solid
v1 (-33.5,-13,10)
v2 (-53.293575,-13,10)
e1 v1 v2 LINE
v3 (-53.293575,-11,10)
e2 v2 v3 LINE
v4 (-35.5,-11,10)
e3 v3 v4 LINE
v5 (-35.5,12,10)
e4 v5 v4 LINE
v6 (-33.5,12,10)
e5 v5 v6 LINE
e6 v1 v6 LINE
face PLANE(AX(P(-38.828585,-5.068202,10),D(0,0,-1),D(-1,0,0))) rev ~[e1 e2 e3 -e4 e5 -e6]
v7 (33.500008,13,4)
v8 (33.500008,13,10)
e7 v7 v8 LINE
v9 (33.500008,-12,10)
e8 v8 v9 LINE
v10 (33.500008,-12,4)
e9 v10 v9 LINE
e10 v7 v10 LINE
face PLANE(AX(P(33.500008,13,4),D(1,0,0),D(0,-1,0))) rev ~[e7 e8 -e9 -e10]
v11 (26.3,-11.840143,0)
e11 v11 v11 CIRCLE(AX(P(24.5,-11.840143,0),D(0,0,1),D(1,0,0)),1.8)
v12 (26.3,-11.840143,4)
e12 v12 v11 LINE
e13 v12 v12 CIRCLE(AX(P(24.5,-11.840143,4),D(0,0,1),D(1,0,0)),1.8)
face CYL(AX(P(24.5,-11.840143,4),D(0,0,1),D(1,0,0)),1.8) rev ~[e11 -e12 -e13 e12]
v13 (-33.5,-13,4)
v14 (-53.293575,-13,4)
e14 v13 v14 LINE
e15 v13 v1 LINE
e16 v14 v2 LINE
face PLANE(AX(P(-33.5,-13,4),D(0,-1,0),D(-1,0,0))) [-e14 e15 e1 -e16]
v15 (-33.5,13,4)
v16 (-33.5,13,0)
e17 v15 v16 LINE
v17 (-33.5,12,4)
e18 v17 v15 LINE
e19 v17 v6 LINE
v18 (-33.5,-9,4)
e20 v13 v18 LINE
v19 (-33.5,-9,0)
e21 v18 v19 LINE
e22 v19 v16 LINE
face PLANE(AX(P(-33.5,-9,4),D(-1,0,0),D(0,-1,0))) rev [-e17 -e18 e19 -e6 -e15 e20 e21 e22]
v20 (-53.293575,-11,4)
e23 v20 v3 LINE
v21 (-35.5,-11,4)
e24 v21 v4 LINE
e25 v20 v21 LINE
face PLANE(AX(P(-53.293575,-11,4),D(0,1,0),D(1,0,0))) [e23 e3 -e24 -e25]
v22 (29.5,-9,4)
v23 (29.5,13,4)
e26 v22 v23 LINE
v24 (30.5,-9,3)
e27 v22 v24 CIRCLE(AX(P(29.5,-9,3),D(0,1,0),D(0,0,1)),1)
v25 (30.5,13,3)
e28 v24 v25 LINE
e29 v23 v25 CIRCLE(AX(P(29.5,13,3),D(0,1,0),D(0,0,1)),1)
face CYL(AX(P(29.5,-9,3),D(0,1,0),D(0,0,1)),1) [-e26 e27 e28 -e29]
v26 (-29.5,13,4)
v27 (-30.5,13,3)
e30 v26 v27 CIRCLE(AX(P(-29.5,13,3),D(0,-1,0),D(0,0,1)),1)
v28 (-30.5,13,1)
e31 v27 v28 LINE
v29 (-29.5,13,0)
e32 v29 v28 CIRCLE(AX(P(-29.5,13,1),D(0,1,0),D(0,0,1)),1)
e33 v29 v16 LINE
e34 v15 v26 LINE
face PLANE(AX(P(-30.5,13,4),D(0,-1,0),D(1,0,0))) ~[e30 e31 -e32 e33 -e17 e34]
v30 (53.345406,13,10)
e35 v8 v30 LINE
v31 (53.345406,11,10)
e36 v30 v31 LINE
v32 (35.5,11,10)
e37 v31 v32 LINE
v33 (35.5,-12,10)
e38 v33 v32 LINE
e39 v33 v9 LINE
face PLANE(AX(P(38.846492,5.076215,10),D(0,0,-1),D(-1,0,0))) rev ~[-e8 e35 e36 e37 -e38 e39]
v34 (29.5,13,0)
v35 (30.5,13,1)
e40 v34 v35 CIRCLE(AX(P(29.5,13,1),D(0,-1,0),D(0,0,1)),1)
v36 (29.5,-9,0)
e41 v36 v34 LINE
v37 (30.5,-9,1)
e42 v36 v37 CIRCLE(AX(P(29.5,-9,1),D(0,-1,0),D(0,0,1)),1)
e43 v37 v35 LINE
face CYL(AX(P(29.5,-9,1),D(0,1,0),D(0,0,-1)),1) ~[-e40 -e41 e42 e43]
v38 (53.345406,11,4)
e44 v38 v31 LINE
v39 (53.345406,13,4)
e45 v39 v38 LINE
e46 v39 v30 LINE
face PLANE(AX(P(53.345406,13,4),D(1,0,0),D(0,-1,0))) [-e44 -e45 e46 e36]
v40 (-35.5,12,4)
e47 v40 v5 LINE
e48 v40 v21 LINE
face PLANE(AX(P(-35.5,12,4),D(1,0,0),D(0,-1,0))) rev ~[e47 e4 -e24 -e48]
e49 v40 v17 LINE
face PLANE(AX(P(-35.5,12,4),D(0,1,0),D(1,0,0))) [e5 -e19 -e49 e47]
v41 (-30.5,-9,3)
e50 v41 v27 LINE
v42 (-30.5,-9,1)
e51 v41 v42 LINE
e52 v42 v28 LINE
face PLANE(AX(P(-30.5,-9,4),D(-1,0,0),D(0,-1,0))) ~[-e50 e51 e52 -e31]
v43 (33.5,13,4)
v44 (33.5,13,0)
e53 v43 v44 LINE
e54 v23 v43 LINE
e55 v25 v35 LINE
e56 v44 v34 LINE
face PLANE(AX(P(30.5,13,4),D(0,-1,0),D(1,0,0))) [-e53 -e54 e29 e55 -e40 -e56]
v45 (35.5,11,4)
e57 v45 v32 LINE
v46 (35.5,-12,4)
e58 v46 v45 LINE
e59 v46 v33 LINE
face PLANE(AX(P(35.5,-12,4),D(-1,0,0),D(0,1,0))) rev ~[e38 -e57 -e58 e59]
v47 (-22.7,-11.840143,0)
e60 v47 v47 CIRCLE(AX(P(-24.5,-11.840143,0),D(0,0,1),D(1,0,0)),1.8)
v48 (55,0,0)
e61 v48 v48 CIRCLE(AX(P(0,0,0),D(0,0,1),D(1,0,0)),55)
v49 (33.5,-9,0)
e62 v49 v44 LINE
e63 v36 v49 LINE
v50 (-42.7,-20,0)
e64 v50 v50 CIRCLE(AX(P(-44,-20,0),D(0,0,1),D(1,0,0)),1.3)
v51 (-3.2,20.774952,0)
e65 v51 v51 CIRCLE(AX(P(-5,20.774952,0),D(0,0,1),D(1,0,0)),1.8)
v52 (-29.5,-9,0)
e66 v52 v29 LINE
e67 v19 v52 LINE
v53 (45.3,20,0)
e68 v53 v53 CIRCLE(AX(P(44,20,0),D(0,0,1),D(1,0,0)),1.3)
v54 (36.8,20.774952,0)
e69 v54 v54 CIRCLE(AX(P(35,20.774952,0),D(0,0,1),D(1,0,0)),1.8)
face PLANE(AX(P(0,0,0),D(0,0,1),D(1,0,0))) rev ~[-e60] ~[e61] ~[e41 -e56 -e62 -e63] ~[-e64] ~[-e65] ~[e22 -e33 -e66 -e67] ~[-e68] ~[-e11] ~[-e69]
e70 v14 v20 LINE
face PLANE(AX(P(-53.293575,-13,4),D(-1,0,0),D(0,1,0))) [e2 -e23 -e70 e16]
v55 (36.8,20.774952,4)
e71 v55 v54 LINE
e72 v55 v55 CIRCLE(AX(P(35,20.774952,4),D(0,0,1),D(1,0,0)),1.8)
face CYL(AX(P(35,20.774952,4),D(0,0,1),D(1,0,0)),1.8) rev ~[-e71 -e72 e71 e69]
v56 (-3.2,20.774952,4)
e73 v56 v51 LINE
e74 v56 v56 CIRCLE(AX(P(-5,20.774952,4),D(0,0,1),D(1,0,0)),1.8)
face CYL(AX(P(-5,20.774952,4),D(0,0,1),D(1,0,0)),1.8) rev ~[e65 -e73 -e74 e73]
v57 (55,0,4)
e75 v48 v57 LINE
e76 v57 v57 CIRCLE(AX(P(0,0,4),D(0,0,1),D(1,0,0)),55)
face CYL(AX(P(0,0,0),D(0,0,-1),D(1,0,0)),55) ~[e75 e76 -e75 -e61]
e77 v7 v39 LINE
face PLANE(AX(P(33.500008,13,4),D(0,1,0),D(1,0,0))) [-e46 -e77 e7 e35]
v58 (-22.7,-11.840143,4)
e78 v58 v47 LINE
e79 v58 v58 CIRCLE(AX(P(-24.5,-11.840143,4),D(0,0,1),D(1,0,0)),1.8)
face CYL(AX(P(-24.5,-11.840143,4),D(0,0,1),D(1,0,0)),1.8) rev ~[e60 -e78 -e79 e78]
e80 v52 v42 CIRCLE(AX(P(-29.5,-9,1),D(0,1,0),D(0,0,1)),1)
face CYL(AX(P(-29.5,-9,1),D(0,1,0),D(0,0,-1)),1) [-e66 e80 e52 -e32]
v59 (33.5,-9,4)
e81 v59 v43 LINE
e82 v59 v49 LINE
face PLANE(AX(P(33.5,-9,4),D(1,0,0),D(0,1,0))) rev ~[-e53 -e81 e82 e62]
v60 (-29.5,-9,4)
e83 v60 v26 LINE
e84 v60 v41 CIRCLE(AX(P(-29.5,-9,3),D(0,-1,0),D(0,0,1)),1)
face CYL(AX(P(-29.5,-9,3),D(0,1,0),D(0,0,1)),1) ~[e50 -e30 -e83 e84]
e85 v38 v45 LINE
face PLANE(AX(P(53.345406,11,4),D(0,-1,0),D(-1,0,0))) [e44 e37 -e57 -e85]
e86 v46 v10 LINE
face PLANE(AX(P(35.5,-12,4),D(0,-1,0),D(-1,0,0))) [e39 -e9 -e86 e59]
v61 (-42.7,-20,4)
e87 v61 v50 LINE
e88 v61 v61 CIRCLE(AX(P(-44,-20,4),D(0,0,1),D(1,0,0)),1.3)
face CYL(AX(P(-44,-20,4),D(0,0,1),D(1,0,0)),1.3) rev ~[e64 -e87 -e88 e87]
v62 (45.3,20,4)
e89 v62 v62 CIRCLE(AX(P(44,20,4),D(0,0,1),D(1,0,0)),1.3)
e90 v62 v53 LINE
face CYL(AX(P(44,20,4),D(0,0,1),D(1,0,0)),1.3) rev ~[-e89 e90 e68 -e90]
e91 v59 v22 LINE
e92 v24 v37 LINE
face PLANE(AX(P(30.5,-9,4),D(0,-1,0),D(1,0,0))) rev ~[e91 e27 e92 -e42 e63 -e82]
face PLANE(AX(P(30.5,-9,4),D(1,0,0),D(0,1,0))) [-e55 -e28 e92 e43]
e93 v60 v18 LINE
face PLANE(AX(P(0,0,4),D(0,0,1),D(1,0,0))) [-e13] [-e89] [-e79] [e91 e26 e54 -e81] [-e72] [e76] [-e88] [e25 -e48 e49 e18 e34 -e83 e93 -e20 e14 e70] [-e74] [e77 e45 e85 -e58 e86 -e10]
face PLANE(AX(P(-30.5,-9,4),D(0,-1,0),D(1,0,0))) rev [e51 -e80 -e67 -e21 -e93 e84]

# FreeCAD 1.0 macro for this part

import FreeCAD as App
import Part
import Sketcher
from FreeCAD import Vector


def edges_at(feature, points):
    """Names of the edges that pass closest to the given points."""
    edges = feature.Shape.Edges
    near = lambda p: min(range(len(edges)), key=lambda i: edges[i].distToShape(Part.Vertex(*p))[0])
    return sorted({f"Edge{near(p) + 1}" for p in points})

doc = App.newDocument("Part")
body = doc.addObject("PartDesign::Body", "Body")

# Sketch on XY plane
sketch1 = body.newObject("Sketcher::SketchObject", "Sketch")
sketch1.AttachmentSupport = (doc.getObject("XY_Plane"), [""])
sketch1.MapMode = "FlatFace"
sketch1.addGeometry(Part.Circle(Vector(0, 0, 0), Vector(0, 0, 1), 55), False)
sketch1.addConstraint([
    Sketcher.Constraint("Coincident", 0, 3, -1, 1),
    Sketcher.Constraint("Diameter", 0, 110.0),
])
pad1 = body.newObject("PartDesign::Pad", "Pad")
pad1.Profile = sketch1
pad1.Length = 4

# Sketch on XY plane
sketch2 = body.newObject("Sketcher::SketchObject", "Sketch001")
sketch2.AttachmentSupport = (doc.getObject("XY_Plane"), [""])
sketch2.MapMode = "FlatFace"
sketch2.AttachmentOffset = App.Placement(Vector(0, 0, 4), App.Rotation())
sketch2.addGeometry([
    Part.Circle(Vector(-24.5, -11.840143, 0), Vector(0, 0, 1), 1.8),
    Part.Circle(Vector(24.5, -11.840143, 0), Vector(0, 0, 1), 1.8),
    Part.Circle(Vector(-5, 20.774952, 0), Vector(0, 0, 1), 1.8),
    Part.Circle(Vector(35, 20.774952, 0), Vector(0, 0, 1), 1.8),
], False)
sketch2.addConstraint([
    Sketcher.Constraint("Equal", 0, 1),
    Sketcher.Constraint("Equal", 1, 2),
    Sketcher.Constraint("Equal", 2, 3),
    Sketcher.Constraint("Symmetric", 0, 3, 1, 3, -2),
    Sketcher.Constraint("Horizontal", 2, 3, 3, 3),
    Sketcher.Constraint("Diameter", 0, 3.6),
    Sketcher.Constraint("DistanceX", 2, 3, -1, 1, 5.0),
    Sketcher.Constraint("DistanceX", -1, 1, 3, 3, 35.0),
    Sketcher.Constraint("DistanceX", 0, 3, 1, 3, 49.0),
    Sketcher.Constraint("DistanceY", -1, 1, 2, 3, 20.774952),
    Sketcher.Constraint("DistanceY", 0, 3, -1, 1, 11.840143),
])
pocket1 = body.newObject("PartDesign::Pocket", "Pocket")
pocket1.Profile = sketch2
pocket1.Length = 5

# Sketch on XY plane
sketch3 = body.newObject("Sketcher::SketchObject", "Sketch002")
sketch3.AttachmentSupport = (doc.getObject("XY_Plane"), [""])
sketch3.MapMode = "FlatFace"
sketch3.AttachmentOffset = App.Placement(Vector(0, 0, 4), App.Rotation())
sketch3.addGeometry([
    Part.LineSegment(Vector(33.500008, 13, 0), Vector(33.500008, -12, 0)),  # 0
    Part.LineSegment(Vector(33.500008, -12, 0), Vector(35.5, -12, 0)),  # 1
    Part.LineSegment(Vector(35.5, -12, 0), Vector(35.5, 11, 0)),  # 2
    Part.LineSegment(Vector(35.5, 11, 0), Vector(53.345406, 11, 0)),  # 3
    Part.LineSegment(Vector(53.345406, 11, 0), Vector(53.345406, 13, 0)),  # 4
    Part.LineSegment(Vector(53.345406, 13, 0), Vector(33.500008, 13, 0)),  # 5
    Part.LineSegment(Vector(-33.5, -13, 0), Vector(-33.5, 12, 0)),  # 6
    Part.LineSegment(Vector(-33.5, 12, 0), Vector(-35.5, 12, 0)),  # 7
    Part.LineSegment(Vector(-35.5, 12, 0), Vector(-35.5, -11, 0)),  # 8
    Part.LineSegment(Vector(-35.5, -11, 0), Vector(-53.293575, -11, 0)),  # 9
    Part.LineSegment(Vector(-53.293575, -11, 0), Vector(-53.293575, -13, 0)),  # 10
    Part.LineSegment(Vector(-53.293575, -13, 0), Vector(-33.5, -13, 0)),  # 11
], False)
sketch3.addConstraint([
    Sketcher.Constraint("Coincident", 0, 2, 1, 1),
    Sketcher.Constraint("Coincident", 1, 2, 2, 1),
    Sketcher.Constraint("Coincident", 2, 2, 3, 1),
    Sketcher.Constraint("Coincident", 3, 2, 4, 1),
    Sketcher.Constraint("Coincident", 4, 2, 5, 1),
    Sketcher.Constraint("Coincident", 5, 2, 0, 1),
    Sketcher.Constraint("Coincident", 6, 2, 7, 1),
    Sketcher.Constraint("Coincident", 7, 2, 8, 1),
    Sketcher.Constraint("Coincident", 8, 2, 9, 1),
    Sketcher.Constraint("Coincident", 9, 2, 10, 1),
    Sketcher.Constraint("Coincident", 10, 2, 11, 1),
    Sketcher.Constraint("Coincident", 11, 2, 6, 1),
    Sketcher.Constraint("Vertical", 0),
    Sketcher.Constraint("Horizontal", 1),
    Sketcher.Constraint("Vertical", 2),
    Sketcher.Constraint("Horizontal", 3),
    Sketcher.Constraint("Vertical", 4),
    Sketcher.Constraint("Horizontal", 5),
    Sketcher.Constraint("Vertical", 6),
    Sketcher.Constraint("Horizontal", 7),
    Sketcher.Constraint("Vertical", 8),
    Sketcher.Constraint("Horizontal", 9),
    Sketcher.Constraint("Vertical", 10),
    Sketcher.Constraint("Horizontal", 11),
    Sketcher.Constraint("Symmetric", 0, 2, 6, 2, -1, 1),
    Sketcher.Constraint("Symmetric", 2, 2, 8, 2, -1, 1),
    Sketcher.Constraint("Equal", 7, 4),
    Sketcher.Constraint("Equal", 0, 6),
    Sketcher.Constraint("DistanceX", 7, 2, 7, 1, 2.0),
    Sketcher.Constraint("DistanceY", 0, 2, 0, 1, 25.0),
    Sketcher.Constraint("DistanceY", 0, 2, -1, 1, 12.0),
    Sketcher.Constraint("DistanceX", 6, 2, 2, 2, 69.0),
    Sketcher.Constraint("DistanceX", 3, 1, 3, 2, 17.845406),
    Sketcher.Constraint("DistanceX", 9, 2, 9, 1, 17.793575),
])
pad2 = body.newObject("PartDesign::Pad", "Pad001")
pad2.Profile = sketch3
pad2.Length = 6

# Sketch on XY plane
sketch4 = body.newObject("Sketcher::SketchObject", "Sketch003")
sketch4.AttachmentSupport = (doc.getObject("XY_Plane"), [""])
sketch4.MapMode = "FlatFace"
sketch4.AttachmentOffset = App.Placement(Vector(0, 0, 4), App.Rotation())
sketch4.addGeometry([
    Part.Circle(Vector(-44, -20, 0), Vector(0, 0, 1), 1.3),
    Part.Circle(Vector(44, 20, 0), Vector(0, 0, 1), 1.3),
], False)
sketch4.addConstraint([
    Sketcher.Constraint("Equal", 0, 1),
    Sketcher.Constraint("Symmetric", 0, 3, 1, 3, -1, 1),
    Sketcher.Constraint("Diameter", 0, 2.6),
    Sketcher.Constraint("DistanceX", 0, 3, -1, 1, 44.0),
    Sketcher.Constraint("DistanceY", 0, 3, -1, 1, 20.0),
])
pocket2 = body.newObject("PartDesign::Pocket", "Pocket001")
pocket2.Profile = sketch4
pocket2.Length = 5

# Sketch on XY plane
sketch5 = body.newObject("Sketcher::SketchObject", "Sketch004")
sketch5.AttachmentSupport = (doc.getObject("XY_Plane"), [""])
sketch5.MapMode = "FlatFace"
sketch5.AttachmentOffset = App.Placement(Vector(0, 0, 4), App.Rotation())
sketch5.addGeometry([
    Part.LineSegment(Vector(30.5, 13, 0), Vector(30.5, -9, 0)),
    Part.LineSegment(Vector(30.5, -9, 0), Vector(33.5, -9, 0)),
    Part.LineSegment(Vector(33.5, -9, 0), Vector(33.5, 13, 0)),
    Part.LineSegment(Vector(33.5, 13, 0), Vector(30.5, 13, 0)),
], False)
sketch5.addConstraint([
    Sketcher.Constraint("Coincident", 0, 2, 1, 1),
    Sketcher.Constraint("Coincident", 1, 2, 2, 1),
    Sketcher.Constraint("Coincident", 2, 2, 3, 1),
    Sketcher.Constraint("Coincident", 3, 2, 0, 1),
    Sketcher.Constraint("Vertical", 0),
    Sketcher.Constraint("Horizontal", 1),
    Sketcher.Constraint("Vertical", 2),
    Sketcher.Constraint("Horizontal", 3),
    Sketcher.Constraint("DistanceX", 1, 1, 1, 2, 3.0),
    Sketcher.Constraint("DistanceY", 0, 2, 0, 1, 22.0),
    Sketcher.Constraint("DistanceY", 0, 2, -1, 1, 9.0),
    Sketcher.Constraint("DistanceX", -1, 1, 0, 2, 30.5),
])
pocket3 = body.newObject("PartDesign::Pocket", "Pocket002")
pocket3.Profile = sketch5
pocket3.Length = 5
doc.recompute()

mirrored = body.newObject("PartDesign::Mirrored", "Mirrored")
mirrored.Originals = [pocket3]
mirrored.MirrorPlane = (doc.getObject("YZ_Plane"), [""])
body.Tip = mirrored
doc.recompute()

fillet = body.newObject("PartDesign::Fillet", "Fillet")
fillet.Base = (mirrored, edges_at(mirrored, [(30.5, 2, 4)]))
fillet.Radius = 1
doc.recompute()

fillet2 = body.newObject("PartDesign::Fillet", "Fillet001")
fillet2.Base = (fillet, edges_at(fillet, [(-30.5, 2, 4)]))
fillet2.Radius = 1
doc.recompute()

fillet3 = body.newObject("PartDesign::Fillet", "Fillet002")
fillet3.Base = (fillet2, edges_at(fillet2, [(-30.5, 2, 0)]))
fillet3.Radius = 1
doc.recompute()

fillet4 = body.newObject("PartDesign::Fillet", "Fillet003")
fillet4.Base = (fillet3, edges_at(fillet3, [(30.5, 2, 0)]))
fillet4.Radius = 1

doc.recompute()
